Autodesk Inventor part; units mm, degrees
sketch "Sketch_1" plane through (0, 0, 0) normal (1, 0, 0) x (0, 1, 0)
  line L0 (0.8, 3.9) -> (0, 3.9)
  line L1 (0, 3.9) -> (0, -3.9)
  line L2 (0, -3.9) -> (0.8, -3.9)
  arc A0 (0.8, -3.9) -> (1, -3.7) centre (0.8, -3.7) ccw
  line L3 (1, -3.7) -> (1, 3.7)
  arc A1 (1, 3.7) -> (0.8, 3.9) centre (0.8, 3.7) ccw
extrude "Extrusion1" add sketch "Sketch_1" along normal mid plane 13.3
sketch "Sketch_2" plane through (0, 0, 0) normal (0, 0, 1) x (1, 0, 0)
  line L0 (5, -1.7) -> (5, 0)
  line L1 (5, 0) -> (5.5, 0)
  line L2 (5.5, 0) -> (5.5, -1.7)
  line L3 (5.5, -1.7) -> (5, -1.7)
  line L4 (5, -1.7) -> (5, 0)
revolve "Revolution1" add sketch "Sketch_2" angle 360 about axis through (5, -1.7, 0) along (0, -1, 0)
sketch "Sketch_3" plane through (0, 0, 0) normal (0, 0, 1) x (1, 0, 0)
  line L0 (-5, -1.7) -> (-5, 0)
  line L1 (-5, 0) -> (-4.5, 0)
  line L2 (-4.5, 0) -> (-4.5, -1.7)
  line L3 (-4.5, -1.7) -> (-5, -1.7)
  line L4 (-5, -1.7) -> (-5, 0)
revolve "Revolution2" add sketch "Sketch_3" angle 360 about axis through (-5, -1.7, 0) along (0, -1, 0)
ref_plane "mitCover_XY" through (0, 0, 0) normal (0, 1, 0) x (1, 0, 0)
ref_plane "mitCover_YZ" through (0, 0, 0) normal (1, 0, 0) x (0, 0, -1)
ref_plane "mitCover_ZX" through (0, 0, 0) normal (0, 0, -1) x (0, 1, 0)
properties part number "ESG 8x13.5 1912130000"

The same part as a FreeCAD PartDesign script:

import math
import FreeCAD as App
import Part
import Sketcher

V = App.Vector

doc = App.newDocument("Part")
params = doc.addObject("Spreadsheet::Sheet", "Params")
for row, (alias, value) in enumerate([
    ("sketch1_radius", "0.2 mm"),
    ("sketch1_width", "0.8 mm"),
    ("sketch1_height", "7.8 mm"),
    ("pad1_length", "13.3 mm"),
    ("sketch2_width", "0.5 mm"),
    ("sketch2_height", "1.7 mm"),
    ("revolution_angle", "360 deg"),
    ("sketch3_width", "0.5 mm"),
    ("sketch3_height", "1.7 mm"),
    ("revolution2_angle", "360 deg"),
], start=1):
    params.set(f"A{row}", alias)
    params.set(f"B{row}", "=" + value)
    params.setAlias(f"B{row}", alias)

body = doc.addObject("PartDesign::Body", "Body")

sketch1 = body.newObject("Sketcher::SketchObject", "Sketch")
sketch1.AttachmentSupport = (doc.getObject("YZ_Plane"), [""])
sketch1.MapMode = "FlatFace"
sketch1.addGeometry(Part.ArcOfCircle(Part.Circle(V(0.8, 3.7, 0), V(0, 0, 1), 0.2), math.radians(0), math.radians(90)), False)
sketch1.addGeometry(Part.LineSegment(V(0.8, 3.9, 0), V(0, 3.9, 0)), False)
sketch1.addGeometry(Part.LineSegment(V(0, 3.9, 0), V(0, -3.9, 0)), False)
sketch1.addGeometry(Part.LineSegment(V(0, -3.9, 0), V(0.8, -3.9, 0)), False)
sketch1.addGeometry(Part.ArcOfCircle(Part.Circle(V(0.8, -3.7, 0), V(0, 0, 1), 0.2), math.radians(-90), math.radians(0)), False)
sketch1.addGeometry(Part.LineSegment(V(1, -3.7, 0), V(1, 3.7, 0)), False)
sketch1.addConstraint(Sketcher.Constraint("Tangent", 0, 2, 1, 1))
sketch1.addConstraint(Sketcher.Constraint("Coincident", 1, 2, 2, 1))
sketch1.addConstraint(Sketcher.Constraint("Coincident", 2, 2, 3, 1))
sketch1.addConstraint(Sketcher.Constraint("Tangent", 3, 2, 4, 1))
sketch1.addConstraint(Sketcher.Constraint("Tangent", 4, 2, 5, 1))
sketch1.addConstraint(Sketcher.Constraint("Tangent", 5, 2, 0, 1))
sketch1.addConstraint(Sketcher.Constraint("Horizontal", 1))
sketch1.addConstraint(Sketcher.Constraint("Vertical", 2))
sketch1.addConstraint(Sketcher.Constraint("Horizontal", 3))
sketch1.addConstraint(Sketcher.Constraint("Vertical", 5))
sketch1.addConstraint(Sketcher.Constraint("Equal", 0, 4))
sketch1.addConstraint(Sketcher.Constraint("Symmetric", 1, 2, 2, 2, -1, 1))
sketch1.addConstraint(Sketcher.Constraint("Radius", 0, 0.2))
sketch1.addConstraint(Sketcher.Constraint("DistanceX", 1, 2, 1, 1, 0.8))
sketch1.addConstraint(Sketcher.Constraint("DistanceY", 2, 2, 2, 1, 7.8))
sketch1.setExpression("Constraints[12]", "Params.sketch1_radius")
sketch1.setExpression("Constraints[13]", "Params.sketch1_width")
sketch1.setExpression("Constraints[14]", "Params.sketch1_height")
pad1 = body.newObject("PartDesign::Pad", "Pad")
pad1.Profile = sketch1
pad1.setExpression("Length", "Params.pad1_length")
pad1.Midplane = True

sketch2 = body.newObject("Sketcher::SketchObject", "Sketch001")
sketch2.AttachmentSupport = (doc.getObject("XY_Plane"), [""])
sketch2.MapMode = "FlatFace"
sketch2.addGeometry(Part.LineSegment(V(5, 0, 0), V(5, -1.7, 0)), False)
sketch2.addGeometry(Part.LineSegment(V(5, -1.7, 0), V(5.5, -1.7, 0)), False)
sketch2.addGeometry(Part.LineSegment(V(5.5, -1.7, 0), V(5.5, 0, 0)), False)
sketch2.addGeometry(Part.LineSegment(V(5.5, 0, 0), V(5, 0, 0)), False)
sketch2.addGeometry(Part.LineSegment(V(5, 0, 0), V(5, -1.7, 0)), True)
sketch2.addConstraint(Sketcher.Constraint("Coincident", 0, 2, 1, 1))
sketch2.addConstraint(Sketcher.Constraint("Coincident", 1, 2, 2, 1))
sketch2.addConstraint(Sketcher.Constraint("Coincident", 2, 2, 3, 1))
sketch2.addConstraint(Sketcher.Constraint("Coincident", 3, 2, 0, 1))
sketch2.addConstraint(Sketcher.Constraint("Vertical", 0))
sketch2.addConstraint(Sketcher.Constraint("Horizontal", 1))
sketch2.addConstraint(Sketcher.Constraint("Vertical", 2))
sketch2.addConstraint(Sketcher.Constraint("Horizontal", 3))
sketch2.addConstraint(Sketcher.Constraint("Vertical", 4))
sketch2.addConstraint(Sketcher.Constraint("Coincident", 4, 1, 3, 2))
sketch2.addConstraint(Sketcher.Constraint("PointOnObject", 2, 2, -1))
sketch2.addConstraint(Sketcher.Constraint("Horizontal", 1, 2, 4, 2))
sketch2.addConstraint(Sketcher.Constraint("DistanceX", 1, 1, 1, 2, 0.5))
sketch2.addConstraint(Sketcher.Constraint("DistanceY", 0, 2, 0, 1, 1.7))
sketch2.addConstraint(Sketcher.Constraint("DistanceX", -1, 1, 0, 2, 5.0))
sketch2.setExpression("Constraints[12]", "Params.sketch2_width")
sketch2.setExpression("Constraints[13]", "Params.sketch2_height")
revolution = body.newObject("PartDesign::Revolution", "Revolution")
revolution.Profile = sketch2
revolution.ReferenceAxis = (sketch2, ["Axis0"])
revolution.setExpression("Angle", "Params.revolution_angle")

sketch3 = body.newObject("Sketcher::SketchObject", "Sketch002")
sketch3.AttachmentSupport = (doc.getObject("XY_Plane"), [""])
sketch3.MapMode = "FlatFace"
sketch3.addGeometry(Part.LineSegment(V(-5, 0, 0), V(-5, -1.7, 0)), False)
sketch3.addGeometry(Part.LineSegment(V(-5, -1.7, 0), V(-4.5, -1.7, 0)), False)
sketch3.addGeometry(Part.LineSegment(V(-4.5, -1.7, 0), V(-4.5, 0, 0)), False)
sketch3.addGeometry(Part.LineSegment(V(-4.5, 0, 0), V(-5, 0, 0)), False)
sketch3.addGeometry(Part.LineSegment(V(-5, 0, 0), V(-5, -1.7, 0)), True)
sketch3.addConstraint(Sketcher.Constraint("Coincident", 0, 2, 1, 1))
sketch3.addConstraint(Sketcher.Constraint("Coincident", 1, 2, 2, 1))
sketch3.addConstraint(Sketcher.Constraint("Coincident", 2, 2, 3, 1))
sketch3.addConstraint(Sketcher.Constraint("Coincident", 3, 2, 0, 1))
sketch3.addConstraint(Sketcher.Constraint("Vertical", 0))
sketch3.addConstraint(Sketcher.Constraint("Horizontal", 1))
sketch3.addConstraint(Sketcher.Constraint("Vertical", 2))
sketch3.addConstraint(Sketcher.Constraint("Horizontal", 3))
sketch3.addConstraint(Sketcher.Constraint("Vertical", 4))
sketch3.addConstraint(Sketcher.Constraint("Coincident", 4, 1, 3, 2))
sketch3.addConstraint(Sketcher.Constraint("PointOnObject", 2, 2, -1))
sketch3.addConstraint(Sketcher.Constraint("Horizontal", 1, 2, 4, 2))
sketch3.addConstraint(Sketcher.Constraint("DistanceX", 1, 1, 1, 2, 0.5))
sketch3.addConstraint(Sketcher.Constraint("DistanceY", 0, 2, 0, 1, 1.7))
sketch3.addConstraint(Sketcher.Constraint("DistanceX", 0, 2, -1, 1, 5.0))
sketch3.setExpression("Constraints[12]", "Params.sketch3_width")
sketch3.setExpression("Constraints[13]", "Params.sketch3_height")
revolution2 = body.newObject("PartDesign::Revolution", "Revolution001")
revolution2.Profile = sketch3
revolution2.ReferenceAxis = (sketch3, ["Axis0"])
revolution2.setExpression("Angle", "Params.revolution2_angle")

doc.recompute()
